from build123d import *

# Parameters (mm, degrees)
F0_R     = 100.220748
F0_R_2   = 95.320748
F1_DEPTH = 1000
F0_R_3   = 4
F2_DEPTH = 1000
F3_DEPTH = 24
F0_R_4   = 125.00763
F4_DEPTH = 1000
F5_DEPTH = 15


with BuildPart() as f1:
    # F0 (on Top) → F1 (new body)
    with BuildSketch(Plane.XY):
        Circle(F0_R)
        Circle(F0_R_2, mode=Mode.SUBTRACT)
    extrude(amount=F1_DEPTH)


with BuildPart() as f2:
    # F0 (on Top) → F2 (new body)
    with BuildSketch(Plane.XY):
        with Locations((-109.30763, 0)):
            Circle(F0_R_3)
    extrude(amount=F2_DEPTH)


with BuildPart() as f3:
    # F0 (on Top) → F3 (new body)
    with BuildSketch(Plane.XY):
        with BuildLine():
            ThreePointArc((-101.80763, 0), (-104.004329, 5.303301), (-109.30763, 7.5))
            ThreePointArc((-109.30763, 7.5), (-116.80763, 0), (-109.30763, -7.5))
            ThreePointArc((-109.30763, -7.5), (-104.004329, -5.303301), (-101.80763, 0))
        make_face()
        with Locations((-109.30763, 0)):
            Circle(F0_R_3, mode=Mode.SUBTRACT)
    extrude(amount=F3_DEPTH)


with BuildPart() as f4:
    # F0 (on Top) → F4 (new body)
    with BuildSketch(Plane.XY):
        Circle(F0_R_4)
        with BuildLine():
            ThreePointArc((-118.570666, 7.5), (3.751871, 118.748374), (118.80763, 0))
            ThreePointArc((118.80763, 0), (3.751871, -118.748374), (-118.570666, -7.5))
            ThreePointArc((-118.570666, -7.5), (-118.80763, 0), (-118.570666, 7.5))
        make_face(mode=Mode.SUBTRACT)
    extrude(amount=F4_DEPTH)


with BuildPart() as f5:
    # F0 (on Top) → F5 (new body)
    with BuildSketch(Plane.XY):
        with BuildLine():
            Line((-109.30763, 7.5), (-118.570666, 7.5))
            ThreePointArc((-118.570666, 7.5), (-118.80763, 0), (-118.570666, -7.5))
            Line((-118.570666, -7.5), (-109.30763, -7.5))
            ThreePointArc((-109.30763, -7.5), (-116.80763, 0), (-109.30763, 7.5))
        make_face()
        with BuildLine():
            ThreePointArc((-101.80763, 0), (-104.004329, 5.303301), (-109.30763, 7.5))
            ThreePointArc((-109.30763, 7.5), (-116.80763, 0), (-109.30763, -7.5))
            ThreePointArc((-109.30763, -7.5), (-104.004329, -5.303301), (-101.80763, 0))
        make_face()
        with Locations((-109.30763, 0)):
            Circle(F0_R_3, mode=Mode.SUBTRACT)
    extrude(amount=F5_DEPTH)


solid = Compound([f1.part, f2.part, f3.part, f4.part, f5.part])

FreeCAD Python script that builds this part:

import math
import FreeCAD as App
import Part
import Sketcher
from FreeCAD import Vector
Q = App.Units.Quantity

doc = App.newDocument("Part")
body = doc.addObject("PartDesign::Body", "Body")

# Sketch on XY plane
sketch1 = body.newObject("Sketcher::SketchObject", "Sketch")
sketch1.AttachmentSupport = (doc.getObject("XY_Plane"), [""])
sketch1.MapMode = "FlatFace"
sketch1.addGeometry(Part.Circle(Vector(0, 0, 0), Vector(0, 0, 1), 100), False)
sketch1.addGeometry(Part.Circle(Vector(0, 0, 0), Vector(0, 0, 1), 95), False)
sketch1.addConstraint(Sketcher.Constraint("Coincident", 0, 3, -1, 1))
sketch1.addConstraint(Sketcher.Constraint("Coincident", 1, 3, -1, 1))
sketch1.addConstraint(Sketcher.Constraint("Diameter", 0, Q("200.441496 mm")))
sketch1.addConstraint(Sketcher.Constraint("Diameter", 1, Q("190.641496 mm")))
pad1 = body.newObject("PartDesign::Pad", "Pad")
pad1.Profile = sketch1
pad1.Length = 1000
body2 = doc.addObject("PartDesign::Body", "Body001")

# Sketch on XY plane
sketch2 = body2.newObject("Sketcher::SketchObject", "Sketch001")
sketch2.AttachmentSupport = (doc.getObject("XY_Plane001"), [""])
sketch2.MapMode = "FlatFace"
sketch2.addGeometry(Part.Circle(Vector(-109.3, 0, 0), Vector(0, 0, 1), 4), False)
sketch2.addConstraint(Sketcher.Constraint("PointOnObject", 0, 3, -1))
sketch2.addConstraint(Sketcher.Constraint("Diameter", 0, Q("8 mm")))
sketch2.addConstraint(Sketcher.Constraint("DistanceX", 0, 3, -1, 1, Q("109.30763 mm")))
pad2 = body2.newObject("PartDesign::Pad", "Pad001")
pad2.Profile = sketch2
pad2.Length = 1000
body3 = doc.addObject("PartDesign::Body", "Body002")

# Sketch on XY plane
sketch3 = body3.newObject("Sketcher::SketchObject", "Sketch002")
sketch3.AttachmentSupport = (doc.getObject("XY_Plane002"), [""])
sketch3.MapMode = "FlatFace"
sketch3.addGeometry(Part.ArcOfCircle(Part.Circle(Vector(-109.3, 0, 0), Vector(0, 0, 1), 7.5), math.radians(0), math.radians(90)), False)
sketch3.addGeometry(Part.ArcOfCircle(Part.Circle(Vector(-109.3, 0, 0), Vector(0, 0, 1), 7.5), math.radians(90), math.radians(270)), False)
sketch3.addGeometry(Part.ArcOfCircle(Part.Circle(Vector(-109.3, 0, 0), Vector(0, 0, 1), 7.5), math.radians(-90), math.radians(0)), False)
sketch3.addGeometry(Part.Circle(Vector(-109.3, 0, 0), Vector(0, 0, 1), 4), False)
sketch3.addConstraint(Sketcher.Constraint("Tangent", 0, 2, 1, 1))
sketch3.addConstraint(Sketcher.Constraint("Tangent", 1, 2, 2, 1))
sketch3.addConstraint(Sketcher.Constraint("Tangent", 2, 2, 0, 1))
sketch3.addConstraint(Sketcher.Constraint("Coincident", 3, 3, 0, 3))
sketch3.addConstraint(Sketcher.Constraint("Symmetric", 0, 2, 1, 2, -1))
sketch3.addConstraint(Sketcher.Constraint("PointOnObject", 2, 2, -1))
sketch3.addConstraint(Sketcher.Constraint("Vertical", 3, 3, 0, 2))
sketch3.addConstraint(Sketcher.Constraint("Diameter", 3, Q("8 mm")))
sketch3.addConstraint(Sketcher.Constraint("Radius", 0, Q("7.5 mm")))
sketch3.addConstraint(Sketcher.Constraint("DistanceX", 0, 3, -1, 1, Q("109.30763 mm")))
pad3 = body3.newObject("PartDesign::Pad", "Pad002")
pad3.Profile = sketch3
pad3.Length = 24
body4 = doc.addObject("PartDesign::Body", "Body003")

# Sketch on XY plane
sketch4 = body4.newObject("Sketcher::SketchObject", "Sketch003")
sketch4.AttachmentSupport = (doc.getObject("XY_Plane003"), [""])
sketch4.MapMode = "FlatFace"
sketch4.addGeometry(Part.Circle(Vector(0, 0, 0), Vector(0, 0, 1), 125.00763), False)
sketch4.addGeometry(Part.ArcOfCircle(Part.Circle(Vector(-0.000233, 0, 0), Vector(0, 0, 1), 118.807397), math.radians(176.380661), math.radians(183.619339)), False)
sketch4.addGeometry(Part.ArcOfCircle(Part.Circle(Vector(0, 0, 0), Vector(0, 0, 1), 118.80763), math.radians(0), math.radians(176.380668)), False)
sketch4.addGeometry(Part.ArcOfCircle(Part.Circle(Vector(0, 0, 0), Vector(0, 0, 1), 118.80763), math.radians(-176.380668), math.radians(0)), False)
sketch4.addConstraint(Sketcher.Constraint("Coincident", 1, 1, 2, 2))
sketch4.addConstraint(Sketcher.Constraint("Coincident", 2, 1, 3, 2))
sketch4.addConstraint(Sketcher.Constraint("Coincident", 3, 1, 1, 2))
sketch4.addConstraint(Sketcher.Constraint("Coincident", 0, 3, -1, 1))
sketch4.addConstraint(Sketcher.Constraint("Coincident", 2, 3, -1, 1))
sketch4.addConstraint(Sketcher.Constraint("Coincident", 3, 3, -1, 1))
sketch4.addConstraint(Sketcher.Constraint("PointOnObject", 2, 1, -1))
sketch4.addConstraint(Sketcher.Constraint("DistanceY", 3, 1, 1, 1, Q("15 mm")))
sketch4.addConstraint(Sketcher.Constraint("DistanceY", -1, 1, 1, 1, Q("7.5 mm")))
sketch4.addConstraint(Sketcher.Constraint("Diameter", 0, Q("250.01526 mm")))
sketch4.addConstraint(Sketcher.Constraint("Radius", 2, Q("118.80763 mm")))
sketch4.addConstraint(Sketcher.Constraint("Radius", 1, Q("118.807397 mm")))
pad4 = body4.newObject("PartDesign::Pad", "Pad003")
pad4.Profile = sketch4
pad4.Length = 1000
body5 = doc.addObject("PartDesign::Body", "Body004")

# Sketch on XY plane
sketch5 = body5.newObject("Sketcher::SketchObject", "Sketch004")
sketch5.AttachmentSupport = (doc.getObject("XY_Plane004"), [""])
sketch5.MapMode = "FlatFace"
sketch5.addGeometry(Part.LineSegment(Vector(-109.3, 7.5, 0), Vector(-118.6, 7.5, 0)), False)
sketch5.addGeometry(Part.ArcOfCircle(Part.Circle(Vector(0, 0, 0), Vector(0, 0, 1), 118.8), math.radians(176.38), math.radians(183.62)), False)
sketch5.addGeometry(Part.LineSegment(Vector(-118.6, -7.5, 0), Vector(-109.3, -7.5, 0)), False)
sketch5.addGeometry(Part.ArcOfCircle(Part.Circle(Vector(-109.3, 0, 0), Vector(0, 0, 1), 7.5), math.radians(-90), math.radians(0)), False)
sketch5.addGeometry(Part.ArcOfCircle(Part.Circle(Vector(-109.3, 0, 0), Vector(0, 0, 1), 7.5), math.radians(0), math.radians(90)), False)
sketch5.addGeometry(Part.Circle(Vector(-109.3, 0, 0), Vector(0, 0, 1), 4), False)
sketch5.addConstraint(Sketcher.Constraint("Coincident", 0, 2, 1, 1))
sketch5.addConstraint(Sketcher.Constraint("Coincident", 1, 2, 2, 1))
sketch5.addConstraint(Sketcher.Constraint("Tangent", 2, 2, 3, 1))
sketch5.addConstraint(Sketcher.Constraint("Tangent", 3, 2, 4, 1))
sketch5.addConstraint(Sketcher.Constraint("Tangent", 4, 2, 0, 1))
sketch5.addConstraint(Sketcher.Constraint("Horizontal", 0))
sketch5.addConstraint(Sketcher.Constraint("Horizontal", 2))
sketch5.addConstraint(Sketcher.Constraint("Coincident", 5, 3, 3, 3))
sketch5.addConstraint(Sketcher.Constraint("Equal", 3, 4))
sketch5.addConstraint(Sketcher.Constraint("Symmetric", 0, 2, 1, 2, -1))
sketch5.addConstraint(Sketcher.Constraint("PointOnObject", 3, 2, -1))
sketch5.addConstraint(Sketcher.Constraint("Diameter", 5, Q("8 mm")))
sketch5.addConstraint(Sketcher.Constraint("Radius", 3, Q("7.5 mm")))
sketch5.addConstraint(Sketcher.Constraint("Radius", 1, Q("118.807397 mm")))
sketch5.addConstraint(Sketcher.Constraint("DistanceX", 0, 2, 0, 1, Q("9.263036 mm")))
sketch5.addConstraint(Sketcher.Constraint("DistanceX", 3, 3, -1, 1, Q("109.30763 mm")))
pad5 = body5.newObject("PartDesign::Pad", "Pad004")
pad5.Profile = sketch5
pad5.Length = 15

doc.recompute()
